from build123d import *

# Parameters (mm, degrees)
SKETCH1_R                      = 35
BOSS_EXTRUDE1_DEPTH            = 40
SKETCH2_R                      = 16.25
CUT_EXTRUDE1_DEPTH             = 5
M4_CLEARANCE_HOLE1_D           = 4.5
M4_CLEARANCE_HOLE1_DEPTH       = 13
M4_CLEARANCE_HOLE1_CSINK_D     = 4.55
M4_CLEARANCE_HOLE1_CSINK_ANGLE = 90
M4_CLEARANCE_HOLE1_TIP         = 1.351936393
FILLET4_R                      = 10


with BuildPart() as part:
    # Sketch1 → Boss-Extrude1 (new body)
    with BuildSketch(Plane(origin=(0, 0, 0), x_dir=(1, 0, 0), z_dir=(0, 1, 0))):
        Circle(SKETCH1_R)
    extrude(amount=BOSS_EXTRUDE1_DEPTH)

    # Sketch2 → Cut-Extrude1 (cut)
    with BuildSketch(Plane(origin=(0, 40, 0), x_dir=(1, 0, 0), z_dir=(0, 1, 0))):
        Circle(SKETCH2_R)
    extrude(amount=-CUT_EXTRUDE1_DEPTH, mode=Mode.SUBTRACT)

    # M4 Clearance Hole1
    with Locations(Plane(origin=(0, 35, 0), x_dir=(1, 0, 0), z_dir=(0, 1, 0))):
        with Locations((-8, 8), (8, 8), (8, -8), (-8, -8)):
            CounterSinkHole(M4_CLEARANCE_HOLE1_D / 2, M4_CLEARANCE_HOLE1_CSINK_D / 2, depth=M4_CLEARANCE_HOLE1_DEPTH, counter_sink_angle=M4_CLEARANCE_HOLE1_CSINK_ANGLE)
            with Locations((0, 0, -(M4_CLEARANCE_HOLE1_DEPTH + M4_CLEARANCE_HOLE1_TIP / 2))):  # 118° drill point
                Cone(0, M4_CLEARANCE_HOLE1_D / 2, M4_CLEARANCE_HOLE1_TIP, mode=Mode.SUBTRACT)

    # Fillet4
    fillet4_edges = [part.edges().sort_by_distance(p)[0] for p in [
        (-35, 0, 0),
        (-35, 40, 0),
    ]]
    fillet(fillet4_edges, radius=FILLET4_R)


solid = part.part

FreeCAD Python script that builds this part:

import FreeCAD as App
import Part
import Sketcher
from FreeCAD import Vector


def edges_at(feature, points):
    """Names of the edges that pass closest to the given points."""
    edges = feature.Shape.Edges
    near = lambda p: min(range(len(edges)), key=lambda i: edges[i].distToShape(Part.Vertex(*p))[0])
    return sorted({f"Edge{near(p) + 1}" for p in points})

doc = App.newDocument("Part")
body = doc.addObject("PartDesign::Body", "Body")

# Sketch on XZ plane
sketch1 = body.newObject("Sketcher::SketchObject", "Sketch")
sketch1.AttachmentSupport = (doc.getObject("XZ_Plane"), [""])
sketch1.MapMode = "FlatFace"
sketch1.addGeometry(Part.Circle(Vector(0, 0, 0), Vector(0, 0, 1), 35), False)
sketch1.addConstraint([
    Sketcher.Constraint("Coincident", 0, 3, -1, 1),
    Sketcher.Constraint("Diameter", 0, 70.0),
])
pad1 = body.newObject("PartDesign::Pad", "Pad")
pad1.Profile = sketch1
pad1.Length = 40
pad1.Reversed = True

# Sketch on XZ plane
sketch2 = body.newObject("Sketcher::SketchObject", "Sketch001")
sketch2.AttachmentSupport = (doc.getObject("XZ_Plane"), [""])
sketch2.MapMode = "FlatFace"
sketch2.AttachmentOffset = App.Placement(Vector(0, 0, -40), App.Rotation())
sketch2.addGeometry(Part.Circle(Vector(0, 0, 0), Vector(0, 0, 1), 16), False)
sketch2.addConstraint([
    Sketcher.Constraint("Coincident", 0, 3, -1, 1),
    Sketcher.Constraint("Diameter", 0, 32.5),
])
pocket1 = body.newObject("PartDesign::Pocket", "Pocket")
pocket1.Profile = sketch2
pocket1.Length = 5
pocket1.Reversed = True

# Sketch on XZ plane
sketch3 = body.newObject("Sketcher::SketchObject", "Sketch002")
sketch3.AttachmentSupport = (doc.getObject("XZ_Plane"), [""])
sketch3.MapMode = "FlatFace"
sketch3.AttachmentOffset = App.Placement(Vector(0, 0, -35), App.Rotation())
sketch3.addGeometry([
    Part.Circle(Vector(-8, -8, 0), Vector(0, 0, 1), 2.2),
    Part.Circle(Vector(8, -8, 0), Vector(0, 0, 1), 2.2),
    Part.Circle(Vector(8, 8, 0), Vector(0, 0, 1), 2.2),
    Part.Circle(Vector(-8, 8, 0), Vector(0, 0, 1), 2.2),
], False)
sketch3.addConstraint([
    Sketcher.Constraint("Equal", 0, 1),
    Sketcher.Constraint("Equal", 1, 2),
    Sketcher.Constraint("Equal", 2, 3),
    Sketcher.Constraint("Symmetric", 0, 3, 2, 3, -1, 1),
    Sketcher.Constraint("Symmetric", 1, 3, 3, 3, -1, 1),
    Sketcher.Constraint("Symmetric", 0, 3, 1, 3, -2),
    Sketcher.Constraint("Diameter", 0, 4.5),
    Sketcher.Constraint("DistanceX", 0, 3, -1, 1, 8.0),
    Sketcher.Constraint("DistanceY", 0, 3, -1, 1, 8.0),
])
doc.recompute()
hole = body.newObject("PartDesign::Hole", "Hole")
hole.Profile = sketch3
hole.ThreadType = "None"
hole.Diameter = 4.5
hole.DepthType = "Dimension"
hole.Depth = 13
hole.DrillPoint = "Angled"
hole.DrillPointAngle = 118
hole.HoleCutType = "Countersink"
hole.HoleCutDiameter = 4.55
hole.HoleCutCountersinkAngle = 90
hole.Reversed = True
doc.recompute()

fillet = body.newObject("PartDesign::Fillet", "Fillet")
fillet.Base = (hole, edges_at(hole, [(-35, 0, 0), (-35, 40, 0)]))
fillet.Radius = 10

doc.recompute()
